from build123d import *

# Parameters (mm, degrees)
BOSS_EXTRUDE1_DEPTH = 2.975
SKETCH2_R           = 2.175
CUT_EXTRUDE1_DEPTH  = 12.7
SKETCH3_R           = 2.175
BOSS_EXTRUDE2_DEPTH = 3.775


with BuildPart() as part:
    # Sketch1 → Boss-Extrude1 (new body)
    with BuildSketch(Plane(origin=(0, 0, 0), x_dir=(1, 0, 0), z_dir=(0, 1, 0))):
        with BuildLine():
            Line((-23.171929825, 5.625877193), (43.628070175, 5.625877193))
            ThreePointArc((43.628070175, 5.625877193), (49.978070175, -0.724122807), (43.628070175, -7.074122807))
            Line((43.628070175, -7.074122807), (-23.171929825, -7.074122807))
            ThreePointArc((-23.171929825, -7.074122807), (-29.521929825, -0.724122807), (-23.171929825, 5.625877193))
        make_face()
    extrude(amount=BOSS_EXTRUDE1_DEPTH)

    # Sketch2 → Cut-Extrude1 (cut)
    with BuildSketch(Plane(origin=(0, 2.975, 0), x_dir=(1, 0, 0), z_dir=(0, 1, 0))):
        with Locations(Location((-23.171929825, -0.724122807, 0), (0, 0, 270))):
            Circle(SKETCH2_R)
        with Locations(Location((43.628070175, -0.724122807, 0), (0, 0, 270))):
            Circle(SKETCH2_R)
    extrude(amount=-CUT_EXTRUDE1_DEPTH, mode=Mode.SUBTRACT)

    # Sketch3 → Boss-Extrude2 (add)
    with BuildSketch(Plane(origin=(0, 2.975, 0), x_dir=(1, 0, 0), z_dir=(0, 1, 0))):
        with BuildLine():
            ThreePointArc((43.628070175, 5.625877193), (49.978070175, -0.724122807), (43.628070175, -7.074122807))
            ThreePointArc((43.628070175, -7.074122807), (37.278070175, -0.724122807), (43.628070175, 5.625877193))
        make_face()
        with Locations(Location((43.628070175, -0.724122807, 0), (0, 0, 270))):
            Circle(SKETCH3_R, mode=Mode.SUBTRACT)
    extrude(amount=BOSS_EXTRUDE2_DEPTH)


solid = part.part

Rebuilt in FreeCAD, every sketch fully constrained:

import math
import FreeCAD as App
import Part
import Sketcher

V = App.Vector
Q = App.Units.Quantity

doc = App.newDocument("Part")
body = doc.addObject("PartDesign::Body", "Body")

# Sketch on XZ plane
sketch1 = body.newObject("Sketcher::SketchObject", "Sketch")
sketch1.AttachmentSupport = (doc.getObject("XZ_Plane"), [""])
sketch1.MapMode = "FlatFace"
sketch1.addGeometry([
    Part.LineSegment(V(44, -6, 0), V(-23, -6, 0)),
    Part.ArcOfCircle(Part.Circle(V(-23, 1, 0), V(0, 0, 1), 6), math.radians(90), math.radians(270)),
    Part.LineSegment(V(-23, 7, 0), V(44, 7, 0)),
    Part.ArcOfCircle(Part.Circle(V(44, 1, 0), V(0, 0, 1), 6), math.radians(-90), math.radians(90)),
], False)
sketch1.addConstraint([
    Sketcher.Constraint("Tangent", 0, 2, 1, 2),
    Sketcher.Constraint("Tangent", 1, 1, 2, 1),
    Sketcher.Constraint("Tangent", 2, 2, 3, 2),
    Sketcher.Constraint("Tangent", 3, 1, 0, 1),
    Sketcher.Constraint("Horizontal", 0),
    Sketcher.Constraint("Horizontal", 2),
    Sketcher.Constraint("Radius", 1, Q("6.35 mm")),
    Sketcher.Constraint("DistanceX", 0, 2, 0, 1, Q("66.8 mm")),
    Sketcher.Constraint("DistanceX", 1, 3, -1, 1, Q("23.17193 mm")),
    Sketcher.Constraint("DistanceY", -1, 1, 1, 3, Q("0.724123 mm")),
])
pad1 = body.newObject("PartDesign::Pad", "Pad")
pad1.Profile = sketch1
pad1.Length = 2.975
pad1.Reversed = True

# Sketch on XZ plane
sketch2 = body.newObject("Sketcher::SketchObject", "Sketch001")
sketch2.AttachmentSupport = (doc.getObject("XZ_Plane"), [""])
sketch2.MapMode = "FlatFace"
sketch2.AttachmentOffset = App.Placement(V(0, 0, -2.975), App.Rotation())
sketch2.addGeometry([
    Part.Circle(V(-23.2, 0.7, 0), V(0, 0, 1), 2.2),
    Part.Circle(V(43.6, 0.7, 0), V(0, 0, 1), 2.2),
], False)
sketch2.addConstraint([
    Sketcher.Constraint("Equal", 0, 1),
    Sketcher.Constraint("Horizontal", 0, 3, 1, 3),
    Sketcher.Constraint("Diameter", 0, Q("4.35 mm")),
    Sketcher.Constraint("DistanceX", 0, 3, 1, 3, Q("66.8 mm")),
    Sketcher.Constraint("DistanceX", 0, 3, -1, 1, Q("23.17193 mm")),
    Sketcher.Constraint("DistanceY", -1, 1, 0, 3, Q("0.724123 mm")),
])
pocket1 = body.newObject("PartDesign::Pocket", "Pocket")
pocket1.Profile = sketch2
pocket1.Length = 12.7
pocket1.Reversed = True

# Sketch on XZ plane
sketch3 = body.newObject("Sketcher::SketchObject", "Sketch002")
sketch3.AttachmentSupport = (doc.getObject("XZ_Plane"), [""])
sketch3.MapMode = "FlatFace"
sketch3.AttachmentOffset = App.Placement(V(0, 0, -2.975), App.Rotation())
sketch3.addGeometry([
    Part.Circle(V(43.6, 0.7, 0), V(0, 0, 1), 6.3),
    Part.Circle(V(43.6, 0.7, 0), V(0, 0, 1), 2.2),
], False)
sketch3.addConstraint([
    Sketcher.Constraint("Coincident", 1, 3, 0, 3),
    Sketcher.Constraint("Diameter", 0, Q("12.7 mm")),
    Sketcher.Constraint("Diameter", 1, Q("4.35 mm")),
    Sketcher.Constraint("DistanceX", -1, 1, 0, 3, Q("43.62807 mm")),
    Sketcher.Constraint("DistanceY", -1, 1, 0, 3, Q("0.724123 mm")),
])
pad2 = body.newObject("PartDesign::Pad", "Pad001")
pad2.Profile = sketch3
pad2.Length = 3.775
pad2.Reversed = True

doc.recompute()
